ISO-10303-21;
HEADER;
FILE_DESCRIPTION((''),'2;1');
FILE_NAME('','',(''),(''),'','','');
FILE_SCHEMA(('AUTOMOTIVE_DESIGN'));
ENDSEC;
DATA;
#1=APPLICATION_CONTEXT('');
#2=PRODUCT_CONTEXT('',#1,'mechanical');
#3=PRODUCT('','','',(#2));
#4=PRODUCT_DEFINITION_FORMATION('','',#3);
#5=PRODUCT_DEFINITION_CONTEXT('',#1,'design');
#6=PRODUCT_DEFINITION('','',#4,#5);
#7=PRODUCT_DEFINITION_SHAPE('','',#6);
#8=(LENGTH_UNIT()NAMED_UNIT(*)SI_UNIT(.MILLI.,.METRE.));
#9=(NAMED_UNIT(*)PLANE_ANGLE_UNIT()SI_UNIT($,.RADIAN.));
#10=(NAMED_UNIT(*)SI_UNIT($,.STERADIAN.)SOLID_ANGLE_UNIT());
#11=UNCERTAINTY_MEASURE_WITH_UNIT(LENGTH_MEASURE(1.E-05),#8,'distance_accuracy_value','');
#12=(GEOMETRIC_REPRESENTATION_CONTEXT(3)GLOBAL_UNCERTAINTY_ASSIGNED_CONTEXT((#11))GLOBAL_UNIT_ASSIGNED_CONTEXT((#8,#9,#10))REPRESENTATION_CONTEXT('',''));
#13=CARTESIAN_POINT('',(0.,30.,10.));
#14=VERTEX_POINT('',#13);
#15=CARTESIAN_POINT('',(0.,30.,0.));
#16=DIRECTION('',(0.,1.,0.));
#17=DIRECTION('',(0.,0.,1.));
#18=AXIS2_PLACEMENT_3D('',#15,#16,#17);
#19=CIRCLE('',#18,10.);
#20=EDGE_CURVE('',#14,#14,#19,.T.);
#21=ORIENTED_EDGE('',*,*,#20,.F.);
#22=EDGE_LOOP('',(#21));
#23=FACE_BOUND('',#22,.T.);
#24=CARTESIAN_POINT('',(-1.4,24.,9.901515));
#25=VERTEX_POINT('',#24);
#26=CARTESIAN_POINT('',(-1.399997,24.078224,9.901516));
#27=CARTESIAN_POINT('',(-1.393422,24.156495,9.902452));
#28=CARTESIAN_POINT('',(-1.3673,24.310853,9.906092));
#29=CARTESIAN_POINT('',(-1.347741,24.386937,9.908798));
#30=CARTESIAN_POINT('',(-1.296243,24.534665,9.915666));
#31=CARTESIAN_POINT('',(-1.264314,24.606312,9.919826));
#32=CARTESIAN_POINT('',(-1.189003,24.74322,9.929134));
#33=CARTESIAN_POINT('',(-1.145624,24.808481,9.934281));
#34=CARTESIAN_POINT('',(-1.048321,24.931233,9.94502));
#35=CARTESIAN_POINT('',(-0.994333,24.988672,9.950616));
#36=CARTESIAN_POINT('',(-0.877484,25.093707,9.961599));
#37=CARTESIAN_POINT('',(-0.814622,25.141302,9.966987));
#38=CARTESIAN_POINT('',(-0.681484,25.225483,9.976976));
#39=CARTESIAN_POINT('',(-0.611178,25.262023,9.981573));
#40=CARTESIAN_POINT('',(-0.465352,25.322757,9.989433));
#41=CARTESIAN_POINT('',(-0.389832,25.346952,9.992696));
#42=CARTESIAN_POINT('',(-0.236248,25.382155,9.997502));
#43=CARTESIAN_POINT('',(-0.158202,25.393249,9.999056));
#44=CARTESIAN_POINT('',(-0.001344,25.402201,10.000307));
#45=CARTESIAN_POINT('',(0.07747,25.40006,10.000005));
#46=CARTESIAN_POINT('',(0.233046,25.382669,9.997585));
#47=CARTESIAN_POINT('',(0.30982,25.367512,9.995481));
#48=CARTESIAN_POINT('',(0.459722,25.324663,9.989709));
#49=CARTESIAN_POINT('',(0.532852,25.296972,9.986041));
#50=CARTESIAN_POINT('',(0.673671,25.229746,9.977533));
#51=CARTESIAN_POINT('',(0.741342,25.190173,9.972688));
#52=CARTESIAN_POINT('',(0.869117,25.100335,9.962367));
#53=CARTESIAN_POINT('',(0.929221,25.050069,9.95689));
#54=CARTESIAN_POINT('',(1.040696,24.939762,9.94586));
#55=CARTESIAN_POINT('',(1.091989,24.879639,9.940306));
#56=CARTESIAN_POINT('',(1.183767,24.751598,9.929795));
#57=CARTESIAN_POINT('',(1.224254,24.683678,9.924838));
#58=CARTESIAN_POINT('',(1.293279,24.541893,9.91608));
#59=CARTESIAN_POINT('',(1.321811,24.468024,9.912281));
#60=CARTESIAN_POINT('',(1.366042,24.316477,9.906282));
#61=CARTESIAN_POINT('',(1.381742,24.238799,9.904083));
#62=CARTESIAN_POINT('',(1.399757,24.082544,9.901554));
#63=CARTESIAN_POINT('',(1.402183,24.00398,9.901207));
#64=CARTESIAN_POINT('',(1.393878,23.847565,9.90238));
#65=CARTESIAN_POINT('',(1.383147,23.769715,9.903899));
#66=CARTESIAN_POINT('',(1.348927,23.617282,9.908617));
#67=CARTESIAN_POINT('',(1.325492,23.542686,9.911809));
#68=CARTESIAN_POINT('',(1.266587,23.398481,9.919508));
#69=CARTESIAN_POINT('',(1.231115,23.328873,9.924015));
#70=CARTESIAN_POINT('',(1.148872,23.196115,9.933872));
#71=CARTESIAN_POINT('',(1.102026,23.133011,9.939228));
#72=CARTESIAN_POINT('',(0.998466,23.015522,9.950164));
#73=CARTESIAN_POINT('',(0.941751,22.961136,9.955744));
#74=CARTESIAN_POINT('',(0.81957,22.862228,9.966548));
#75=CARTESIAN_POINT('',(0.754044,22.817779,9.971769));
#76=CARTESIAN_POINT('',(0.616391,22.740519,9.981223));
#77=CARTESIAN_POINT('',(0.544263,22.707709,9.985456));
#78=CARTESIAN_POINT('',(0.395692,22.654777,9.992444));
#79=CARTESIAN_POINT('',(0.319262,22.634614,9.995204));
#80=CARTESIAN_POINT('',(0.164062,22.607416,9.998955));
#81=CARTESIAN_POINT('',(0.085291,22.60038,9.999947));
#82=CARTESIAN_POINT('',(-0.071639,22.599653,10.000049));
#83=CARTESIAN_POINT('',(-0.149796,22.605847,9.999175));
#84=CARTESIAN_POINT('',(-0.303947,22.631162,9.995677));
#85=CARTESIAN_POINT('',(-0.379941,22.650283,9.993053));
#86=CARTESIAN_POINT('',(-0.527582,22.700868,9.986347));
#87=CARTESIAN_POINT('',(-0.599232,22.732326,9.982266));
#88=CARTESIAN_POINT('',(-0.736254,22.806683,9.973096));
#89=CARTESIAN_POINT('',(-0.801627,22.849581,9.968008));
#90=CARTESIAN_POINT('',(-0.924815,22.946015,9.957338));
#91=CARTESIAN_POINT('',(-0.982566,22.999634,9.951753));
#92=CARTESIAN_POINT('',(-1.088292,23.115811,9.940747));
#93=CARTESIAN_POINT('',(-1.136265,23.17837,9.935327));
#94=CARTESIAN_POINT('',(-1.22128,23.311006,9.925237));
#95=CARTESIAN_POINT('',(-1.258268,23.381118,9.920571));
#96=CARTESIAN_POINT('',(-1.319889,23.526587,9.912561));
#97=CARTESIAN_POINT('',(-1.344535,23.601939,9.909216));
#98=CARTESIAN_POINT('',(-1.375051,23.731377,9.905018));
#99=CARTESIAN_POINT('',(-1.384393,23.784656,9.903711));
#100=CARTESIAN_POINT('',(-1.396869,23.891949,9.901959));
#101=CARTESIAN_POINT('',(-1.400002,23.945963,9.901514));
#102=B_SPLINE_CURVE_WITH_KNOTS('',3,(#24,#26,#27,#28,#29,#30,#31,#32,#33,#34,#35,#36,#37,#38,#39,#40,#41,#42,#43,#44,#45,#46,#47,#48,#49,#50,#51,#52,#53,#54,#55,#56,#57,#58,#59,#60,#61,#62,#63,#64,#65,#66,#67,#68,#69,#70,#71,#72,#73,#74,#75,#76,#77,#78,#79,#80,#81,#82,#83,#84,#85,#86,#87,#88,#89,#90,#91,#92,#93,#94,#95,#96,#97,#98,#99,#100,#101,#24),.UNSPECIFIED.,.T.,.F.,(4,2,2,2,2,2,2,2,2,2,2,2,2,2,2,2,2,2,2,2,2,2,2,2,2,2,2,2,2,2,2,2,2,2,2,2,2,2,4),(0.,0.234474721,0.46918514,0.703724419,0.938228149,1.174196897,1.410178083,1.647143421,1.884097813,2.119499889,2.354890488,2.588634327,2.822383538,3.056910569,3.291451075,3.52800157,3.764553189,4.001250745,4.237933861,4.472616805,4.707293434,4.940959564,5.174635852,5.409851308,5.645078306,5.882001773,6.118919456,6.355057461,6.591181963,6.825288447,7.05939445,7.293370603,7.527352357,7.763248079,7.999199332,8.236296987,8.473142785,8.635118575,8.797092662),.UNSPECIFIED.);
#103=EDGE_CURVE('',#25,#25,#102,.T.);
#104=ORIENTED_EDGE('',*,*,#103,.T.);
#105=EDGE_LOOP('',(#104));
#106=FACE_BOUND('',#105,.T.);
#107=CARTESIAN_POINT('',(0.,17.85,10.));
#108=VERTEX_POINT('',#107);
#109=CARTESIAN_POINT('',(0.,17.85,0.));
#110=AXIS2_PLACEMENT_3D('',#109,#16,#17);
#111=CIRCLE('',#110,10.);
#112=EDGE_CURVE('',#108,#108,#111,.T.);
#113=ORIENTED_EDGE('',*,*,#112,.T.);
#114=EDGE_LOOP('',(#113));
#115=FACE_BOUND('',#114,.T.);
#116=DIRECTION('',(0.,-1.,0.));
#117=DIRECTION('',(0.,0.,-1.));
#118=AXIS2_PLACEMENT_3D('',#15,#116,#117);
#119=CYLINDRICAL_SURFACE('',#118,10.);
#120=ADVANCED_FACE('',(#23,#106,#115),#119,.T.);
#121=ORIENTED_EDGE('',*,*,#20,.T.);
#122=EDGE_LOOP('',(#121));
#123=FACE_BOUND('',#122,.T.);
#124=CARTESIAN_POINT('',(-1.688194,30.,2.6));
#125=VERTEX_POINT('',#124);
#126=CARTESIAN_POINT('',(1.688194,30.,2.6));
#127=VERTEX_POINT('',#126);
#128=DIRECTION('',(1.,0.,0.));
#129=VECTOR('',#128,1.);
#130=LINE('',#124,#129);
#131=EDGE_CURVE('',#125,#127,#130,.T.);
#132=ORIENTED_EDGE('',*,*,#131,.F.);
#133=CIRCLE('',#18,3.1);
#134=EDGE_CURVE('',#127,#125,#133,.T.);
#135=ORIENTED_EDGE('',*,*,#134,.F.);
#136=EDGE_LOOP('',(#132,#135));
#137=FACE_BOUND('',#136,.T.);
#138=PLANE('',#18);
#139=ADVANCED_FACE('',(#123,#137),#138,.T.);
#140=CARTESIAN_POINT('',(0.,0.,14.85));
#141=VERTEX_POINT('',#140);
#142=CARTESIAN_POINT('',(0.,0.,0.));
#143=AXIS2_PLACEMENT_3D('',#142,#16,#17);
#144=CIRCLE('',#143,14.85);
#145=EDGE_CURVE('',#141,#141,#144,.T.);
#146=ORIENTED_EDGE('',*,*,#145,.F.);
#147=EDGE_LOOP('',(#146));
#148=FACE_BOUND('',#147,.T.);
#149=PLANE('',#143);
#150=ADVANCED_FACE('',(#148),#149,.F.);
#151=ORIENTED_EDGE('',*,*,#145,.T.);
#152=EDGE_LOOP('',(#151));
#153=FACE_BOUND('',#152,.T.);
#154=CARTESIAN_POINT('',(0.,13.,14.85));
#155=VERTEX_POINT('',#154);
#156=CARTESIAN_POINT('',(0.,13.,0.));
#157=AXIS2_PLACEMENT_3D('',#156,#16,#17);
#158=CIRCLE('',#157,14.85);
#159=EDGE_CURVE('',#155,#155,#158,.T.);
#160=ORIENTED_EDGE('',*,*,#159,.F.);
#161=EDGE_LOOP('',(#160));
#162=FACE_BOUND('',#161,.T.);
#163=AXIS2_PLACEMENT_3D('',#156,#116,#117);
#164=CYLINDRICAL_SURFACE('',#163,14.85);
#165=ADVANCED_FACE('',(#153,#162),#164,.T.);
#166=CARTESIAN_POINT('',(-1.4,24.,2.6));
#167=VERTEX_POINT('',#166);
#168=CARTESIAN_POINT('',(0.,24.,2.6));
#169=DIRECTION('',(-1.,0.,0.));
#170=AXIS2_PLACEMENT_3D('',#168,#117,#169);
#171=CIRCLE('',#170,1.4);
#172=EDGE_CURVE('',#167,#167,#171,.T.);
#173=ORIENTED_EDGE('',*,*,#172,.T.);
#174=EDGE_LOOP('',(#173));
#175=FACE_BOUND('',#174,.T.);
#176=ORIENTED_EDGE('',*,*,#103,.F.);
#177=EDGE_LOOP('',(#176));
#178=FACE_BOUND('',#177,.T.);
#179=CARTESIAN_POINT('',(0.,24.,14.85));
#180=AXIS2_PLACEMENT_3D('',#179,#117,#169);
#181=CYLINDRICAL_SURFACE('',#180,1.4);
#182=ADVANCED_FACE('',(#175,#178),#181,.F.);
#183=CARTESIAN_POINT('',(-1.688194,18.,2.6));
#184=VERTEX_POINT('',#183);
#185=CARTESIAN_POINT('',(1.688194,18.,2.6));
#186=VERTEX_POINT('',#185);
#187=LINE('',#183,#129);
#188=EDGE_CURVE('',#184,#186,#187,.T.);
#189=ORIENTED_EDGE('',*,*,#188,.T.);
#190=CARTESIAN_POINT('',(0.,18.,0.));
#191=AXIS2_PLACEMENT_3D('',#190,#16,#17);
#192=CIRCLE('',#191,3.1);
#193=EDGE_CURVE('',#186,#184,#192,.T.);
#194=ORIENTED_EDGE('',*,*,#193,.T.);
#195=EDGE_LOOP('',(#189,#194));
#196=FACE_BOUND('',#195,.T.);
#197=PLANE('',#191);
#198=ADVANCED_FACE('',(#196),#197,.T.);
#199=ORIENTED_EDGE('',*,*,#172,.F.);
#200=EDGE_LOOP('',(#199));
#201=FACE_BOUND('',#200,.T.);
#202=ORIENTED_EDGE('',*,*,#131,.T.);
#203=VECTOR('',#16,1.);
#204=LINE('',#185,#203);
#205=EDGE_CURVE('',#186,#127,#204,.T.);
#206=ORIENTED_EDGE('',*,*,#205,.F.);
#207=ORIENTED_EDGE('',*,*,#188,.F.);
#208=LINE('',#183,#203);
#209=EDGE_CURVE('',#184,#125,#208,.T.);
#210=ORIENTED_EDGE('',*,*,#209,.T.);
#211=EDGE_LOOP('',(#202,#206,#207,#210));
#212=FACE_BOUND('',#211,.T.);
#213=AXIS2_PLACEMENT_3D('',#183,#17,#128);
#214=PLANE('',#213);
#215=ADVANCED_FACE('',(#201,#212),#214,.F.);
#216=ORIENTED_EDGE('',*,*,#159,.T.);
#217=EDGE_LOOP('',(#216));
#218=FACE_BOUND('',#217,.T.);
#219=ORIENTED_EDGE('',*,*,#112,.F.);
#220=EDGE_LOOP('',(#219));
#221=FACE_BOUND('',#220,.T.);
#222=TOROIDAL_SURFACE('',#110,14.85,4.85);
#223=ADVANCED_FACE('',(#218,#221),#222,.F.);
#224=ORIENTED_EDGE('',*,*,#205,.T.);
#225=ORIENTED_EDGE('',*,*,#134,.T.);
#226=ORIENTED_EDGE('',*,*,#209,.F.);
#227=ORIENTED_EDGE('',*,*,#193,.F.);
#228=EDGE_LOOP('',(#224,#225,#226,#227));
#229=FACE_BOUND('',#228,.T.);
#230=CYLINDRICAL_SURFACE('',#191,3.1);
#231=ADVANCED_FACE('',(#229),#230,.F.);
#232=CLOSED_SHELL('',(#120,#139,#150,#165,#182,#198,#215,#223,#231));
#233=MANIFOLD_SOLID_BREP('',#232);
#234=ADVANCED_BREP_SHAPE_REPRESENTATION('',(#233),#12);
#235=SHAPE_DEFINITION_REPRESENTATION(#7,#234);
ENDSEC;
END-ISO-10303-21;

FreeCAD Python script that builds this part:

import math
import FreeCAD as App
import Part
import Sketcher

V = App.Vector

doc = App.newDocument("Part")
params = doc.addObject("Spreadsheet::Sheet", "Params")
for row, (alias, value) in enumerate([
    ("sketch1_diameter", "29.7 mm"),
    ("pad1_length", "13 mm"),
    ("sketch2_diameter", "20 mm"),
    ("pad2_length", "17 mm"),
    ("sketch3_radius", "3.1 mm"),
    ("pocket1_length", "12 mm"),
    ("sketch4_diameter", "2.8 mm"),
    ("sketch5_radius", "4.85 mm"),
    ("revolution_angle", "360 deg"),
], start=1):
    params.set(f"A{row}", alias)
    params.set(f"B{row}", "=" + value)
    params.setAlias(f"B{row}", alias)

body = doc.addObject("PartDesign::Body", "Body")

# Sketch on XZ plane
sketch1 = doc.addObject("Sketcher::SketchObject", "Sketch")
body.addObject(sketch1)
sketch1.AttachmentSupport = (doc.XZ_Plane, [""])
sketch1.MapMode = "FlatFace"
sketch1.addGeometry(Part.Circle(V(0, 0, 0), V(0, 0, 1), 14.85), False)
sketch1.addConstraint([
    Sketcher.Constraint("Coincident", 0, 3, -1, 1),
    Sketcher.Constraint("Diameter", 0, 29.7),
])
sketch1.setExpression("Constraints[1]", "Params.sketch1_diameter")
pad1 = doc.addObject("PartDesign::Pad", "Pad")
body.addObject(pad1)
pad1.Profile = sketch1
pad1.setExpression("Length", "Params.pad1_length")
pad1.Reversed = True

# Sketch on XZ plane
sketch2 = doc.addObject("Sketcher::SketchObject", "Sketch001")
body.addObject(sketch2)
sketch2.AttachmentSupport = (doc.XZ_Plane, [""])
sketch2.MapMode = "FlatFace"
sketch2.AttachmentOffset = App.Placement(V(0, 0, -13), App.Rotation())
sketch2.addGeometry(Part.Circle(V(0, 0, 0), V(0, 0, 1), 10), False)
sketch2.addConstraint([
    Sketcher.Constraint("Coincident", 0, 3, -1, 1),
    Sketcher.Constraint("Diameter", 0, 20.0),
])
sketch2.setExpression("Constraints[1]", "Params.sketch2_diameter")
pad2 = doc.addObject("PartDesign::Pad", "Pad001")
body.addObject(pad2)
pad2.Profile = sketch2
pad2.setExpression("Length", "Params.pad2_length")
pad2.Reversed = True

# Sketch on XZ plane
sketch3 = doc.addObject("Sketcher::SketchObject", "Sketch002")
body.addObject(sketch3)
sketch3.AttachmentSupport = (doc.XZ_Plane, [""])
sketch3.MapMode = "FlatFace"
sketch3.AttachmentOffset = App.Placement(V(0, 0, -30), App.Rotation())
sketch3.addGeometry([
    Part.LineSegment(V(-1.688194, 2.6, 0), V(1.688194, 2.6, 0)),
    Part.ArcOfCircle(Part.Circle(V(0, 0, 0), V(0, 0, 1), 3.1), math.radians(122.995885), math.radians(417.004115)),
], False)
sketch3.addConstraint([
    Sketcher.Constraint("Coincident", 0, 1, 1, 1),
    Sketcher.Constraint("Coincident", 1, 2, 0, 2),
    Sketcher.Constraint("Horizontal", 0),
    Sketcher.Constraint("Coincident", 1, 3, -1, 1),
    Sketcher.Constraint("Radius", 1, 3.1),
    Sketcher.Constraint("DistanceY", -1, 1, 0, 1, 2.6),
])
sketch3.setExpression("Constraints[4]", "Params.sketch3_radius")
pocket1 = doc.addObject("PartDesign::Pocket", "Pocket")
body.addObject(pocket1)
pocket1.Profile = sketch3
pocket1.setExpression("Length", "Params.pocket1_length")
pocket1.Reversed = True

# Sketch on XY plane
sketch4 = doc.addObject("Sketcher::SketchObject", "Sketch003")
body.addObject(sketch4)
sketch4.AttachmentSupport = (doc.XY_Plane, [""])
sketch4.MapMode = "FlatFace"
sketch4.AttachmentOffset = App.Placement(V(0, 0, 2.6), App.Rotation())
sketch4.addGeometry(Part.Circle(V(0, 24, 0), V(0, 0, 1), 1.4), False)
sketch4.addConstraint([
    Sketcher.Constraint("PointOnObject", 0, 3, -2),
    Sketcher.Constraint("Diameter", 0, 2.8),
    Sketcher.Constraint("DistanceY", -1, 1, 0, 3, 24.0),
])
sketch4.setExpression("Constraints[1]", "Params.sketch4_diameter")
pocket2 = doc.addObject("PartDesign::Pocket", "Pocket001")
body.addObject(pocket2)
pocket2.Profile = sketch4
pocket2.Type = "ThroughAll"
pocket2.Reversed = True

# Sketch on YZ plane
sketch5 = doc.addObject("Sketcher::SketchObject", "Sketch004")
body.addObject(sketch5)
sketch5.AttachmentSupport = (doc.YZ_Plane, [""])
sketch5.MapMode = "FlatFace"
sketch5.addGeometry([
    Part.ArcOfCircle(Part.Circle(V(17.85, 14.85, 0), V(0, 0, 1), 4.85), math.radians(180), math.radians(270)),
    Part.LineSegment(V(13, 14.85, 0), V(13, 10, 0)),
    Part.LineSegment(V(13, 10, 0), V(17.85, 10, 0)),
], False)
sketch5.addConstraint([
    Sketcher.Constraint("Tangent", 0, 1, 1, 1),
    Sketcher.Constraint("Coincident", 1, 2, 2, 1),
    Sketcher.Constraint("Tangent", 2, 2, 0, 2),
    Sketcher.Constraint("Vertical", 1),
    Sketcher.Constraint("Horizontal", 2),
    Sketcher.Constraint("Radius", 0, 4.85),
    Sketcher.Constraint("DistanceX", -1, 1, 0, 1, 13.0),
    Sketcher.Constraint("DistanceY", -1, 1, 1, 2, 10.0),
])
sketch5.setExpression("Constraints[5]", "Params.sketch5_radius")
revolution = doc.addObject("PartDesign::Revolution", "Revolution")
body.addObject(revolution)
revolution.Profile = sketch5
revolution.ReferenceAxis = (sketch5, ["H_Axis"])
revolution.setExpression("Angle", "Params.revolution_angle")

doc.recompute()
